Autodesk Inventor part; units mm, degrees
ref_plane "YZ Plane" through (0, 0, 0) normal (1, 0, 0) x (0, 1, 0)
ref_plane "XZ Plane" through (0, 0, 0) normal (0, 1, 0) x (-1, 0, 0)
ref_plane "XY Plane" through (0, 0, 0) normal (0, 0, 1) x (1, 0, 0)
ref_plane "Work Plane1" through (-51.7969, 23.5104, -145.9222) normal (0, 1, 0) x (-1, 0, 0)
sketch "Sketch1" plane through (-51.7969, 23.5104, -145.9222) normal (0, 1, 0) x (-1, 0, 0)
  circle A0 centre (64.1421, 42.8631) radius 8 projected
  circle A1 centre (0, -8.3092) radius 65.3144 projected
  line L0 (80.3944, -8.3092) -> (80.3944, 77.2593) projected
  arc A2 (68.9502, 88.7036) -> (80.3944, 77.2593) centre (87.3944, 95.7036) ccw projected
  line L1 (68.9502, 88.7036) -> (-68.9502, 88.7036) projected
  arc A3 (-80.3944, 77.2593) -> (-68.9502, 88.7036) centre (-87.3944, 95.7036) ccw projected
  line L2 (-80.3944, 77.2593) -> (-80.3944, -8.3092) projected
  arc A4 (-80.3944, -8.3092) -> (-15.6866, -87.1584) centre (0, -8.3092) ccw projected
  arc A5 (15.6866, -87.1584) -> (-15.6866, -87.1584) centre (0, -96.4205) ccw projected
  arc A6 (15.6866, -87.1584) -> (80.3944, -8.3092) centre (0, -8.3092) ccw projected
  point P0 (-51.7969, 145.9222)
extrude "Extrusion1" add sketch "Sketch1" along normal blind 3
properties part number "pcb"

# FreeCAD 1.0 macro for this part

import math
import FreeCAD as App
import Part
import Sketcher
Q = App.Units.Quantity

doc = App.newDocument("Part")
body = doc.addObject("PartDesign::Body", "Body")

sketch1 = doc.addObject("Sketcher::SketchObject", "Sketch")
body.addObject(sketch1)
sketch1.AttachmentSupport = (doc.XZ_Plane, [""])
sketch1.MapMode = "FlatFace"
sketch1.AttachmentOffset = App.Placement(App.Vector(0, 0, -23.5104), App.Rotation())
sketch1.addGeometry(Part.ArcOfCircle(Part.Circle(App.Vector(-51.7969, -154.2314, 0), App.Vector(0, 0, 1), 80.3944), math.radians(180), math.radians(258.748239)), False)
sketch1.addGeometry(Part.LineSegment(App.Vector(-132.1913, -154.2314, 0), App.Vector(-132.1913, -68.6629, 0)), False)
sketch1.addGeometry(Part.ArcOfCircle(Part.Circle(App.Vector(-139.1913, -50.2186, 0), App.Vector(0, 0, 1), 19.727861), math.radians(-69.217192), math.radians(-20.782911)), False)
sketch1.addGeometry(Part.LineSegment(App.Vector(-120.7471, -57.2186, 0), App.Vector(17.1533, -57.2186, 0)), False)
sketch1.addGeometry(Part.ArcOfCircle(Part.Circle(App.Vector(35.5975, -50.2186, 0), App.Vector(0, 0, 1), 19.727955), math.radians(-159.217089), math.radians(-110.782808)), False)
sketch1.addGeometry(Part.LineSegment(App.Vector(28.5975, -68.6629, 0), App.Vector(28.5975, -154.2314, 0)), False)
sketch1.addGeometry(Part.ArcOfCircle(Part.Circle(App.Vector(-51.7969, -154.2314, 0), App.Vector(0, 0, 1), 80.394439), math.radians(-78.748239), math.radians(0)), False)
sketch1.addGeometry(Part.ArcOfCircle(Part.Circle(App.Vector(-51.7969, -242.3427, 0), App.Vector(0, 0, 1), 18.216913), math.radians(30.559583), math.radians(149.440417)), False)
sketch1.addGeometry(Part.Circle(App.Vector(-51.7969, -154.2314, 0), App.Vector(0, 0, 1), 65.3144), False)
sketch1.addGeometry(Part.Circle(App.Vector(-115.939, -103.0591, 0), App.Vector(0, 0, 1), 8), False)
sketch1.addConstraint(Sketcher.Constraint("Tangent", 0, 1, 1, 1))
sketch1.addConstraint(Sketcher.Constraint("Coincident", 1, 2, 2, 1))
sketch1.addConstraint(Sketcher.Constraint("Coincident", 2, 2, 3, 1))
sketch1.addConstraint(Sketcher.Constraint("Coincident", 3, 2, 4, 1))
sketch1.addConstraint(Sketcher.Constraint("Coincident", 4, 2, 5, 1))
sketch1.addConstraint(Sketcher.Constraint("Tangent", 5, 2, 6, 2))
sketch1.addConstraint(Sketcher.Constraint("Coincident", 6, 1, 7, 1))
sketch1.addConstraint(Sketcher.Constraint("Coincident", 7, 2, 0, 2))
sketch1.addConstraint(Sketcher.Constraint("Vertical", 1))
sketch1.addConstraint(Sketcher.Constraint("Horizontal", 3))
sketch1.addConstraint(Sketcher.Constraint("Vertical", 5))
sketch1.addConstraint(Sketcher.Constraint("Coincident", 6, 3, 0, 3))
sketch1.addConstraint(Sketcher.Constraint("Coincident", 8, 3, 0, 3))
sketch1.addConstraint(Sketcher.Constraint("Equal", 2, 4))
sketch1.addConstraint(Sketcher.Constraint("Equal", 0, 6))
sketch1.addConstraint(Sketcher.Constraint("Horizontal", 2, 3, 4, 3))
sketch1.addConstraint(Sketcher.Constraint("Horizontal", 1, 2, 4, 2))
sketch1.addConstraint(Sketcher.Constraint("Horizontal", 6, 1, 7, 2))
sketch1.addConstraint(Sketcher.Constraint("Diameter", 9, Q("16 mm")))
sketch1.addConstraint(Sketcher.Constraint("Radius", 4, Q("19.728 mm")))
sketch1.addConstraint(Sketcher.Constraint("Radius", 7, Q("18.217 mm")))
sketch1.addConstraint(Sketcher.Constraint("DistanceX", 2, 3, 0, 1, Q("7 mm")))
sketch1.addConstraint(Sketcher.Constraint("DistanceY", 2, 2, 2, 3, Q("7 mm")))
sketch1.addConstraint(Sketcher.Constraint("Diameter", 8, Q("130.6288 mm")))
sketch1.addConstraint(Sketcher.Constraint("Radius", 0, Q("80.3944 mm")))
sketch1.addConstraint(Sketcher.Constraint("DistanceY", 1, 1, 1, 2, Q("85.5685 mm")))
sketch1.addConstraint(Sketcher.Constraint("DistanceX", 0, 3, -1, 1, Q("51.797 mm")))
sketch1.addConstraint(Sketcher.Constraint("DistanceX", 9, 3, -1, 1, Q("115.939 mm")))
sketch1.addConstraint(Sketcher.Constraint("DistanceY", 9, 3, -1, 1, Q("103.059 mm")))
sketch1.addConstraint(Sketcher.Constraint("DistanceY", 1, 2, -1, 1, Q("68.663 mm")))
sketch1.addConstraint(Sketcher.Constraint("DistanceY", 7, 3, 4, 3, Q("192.124 mm")))
pad1 = doc.addObject("PartDesign::Pad", "Pad")
body.addObject(pad1)
pad1.Profile = sketch1
pad1.Length = 3
pad1.Reversed = True

doc.recompute()
